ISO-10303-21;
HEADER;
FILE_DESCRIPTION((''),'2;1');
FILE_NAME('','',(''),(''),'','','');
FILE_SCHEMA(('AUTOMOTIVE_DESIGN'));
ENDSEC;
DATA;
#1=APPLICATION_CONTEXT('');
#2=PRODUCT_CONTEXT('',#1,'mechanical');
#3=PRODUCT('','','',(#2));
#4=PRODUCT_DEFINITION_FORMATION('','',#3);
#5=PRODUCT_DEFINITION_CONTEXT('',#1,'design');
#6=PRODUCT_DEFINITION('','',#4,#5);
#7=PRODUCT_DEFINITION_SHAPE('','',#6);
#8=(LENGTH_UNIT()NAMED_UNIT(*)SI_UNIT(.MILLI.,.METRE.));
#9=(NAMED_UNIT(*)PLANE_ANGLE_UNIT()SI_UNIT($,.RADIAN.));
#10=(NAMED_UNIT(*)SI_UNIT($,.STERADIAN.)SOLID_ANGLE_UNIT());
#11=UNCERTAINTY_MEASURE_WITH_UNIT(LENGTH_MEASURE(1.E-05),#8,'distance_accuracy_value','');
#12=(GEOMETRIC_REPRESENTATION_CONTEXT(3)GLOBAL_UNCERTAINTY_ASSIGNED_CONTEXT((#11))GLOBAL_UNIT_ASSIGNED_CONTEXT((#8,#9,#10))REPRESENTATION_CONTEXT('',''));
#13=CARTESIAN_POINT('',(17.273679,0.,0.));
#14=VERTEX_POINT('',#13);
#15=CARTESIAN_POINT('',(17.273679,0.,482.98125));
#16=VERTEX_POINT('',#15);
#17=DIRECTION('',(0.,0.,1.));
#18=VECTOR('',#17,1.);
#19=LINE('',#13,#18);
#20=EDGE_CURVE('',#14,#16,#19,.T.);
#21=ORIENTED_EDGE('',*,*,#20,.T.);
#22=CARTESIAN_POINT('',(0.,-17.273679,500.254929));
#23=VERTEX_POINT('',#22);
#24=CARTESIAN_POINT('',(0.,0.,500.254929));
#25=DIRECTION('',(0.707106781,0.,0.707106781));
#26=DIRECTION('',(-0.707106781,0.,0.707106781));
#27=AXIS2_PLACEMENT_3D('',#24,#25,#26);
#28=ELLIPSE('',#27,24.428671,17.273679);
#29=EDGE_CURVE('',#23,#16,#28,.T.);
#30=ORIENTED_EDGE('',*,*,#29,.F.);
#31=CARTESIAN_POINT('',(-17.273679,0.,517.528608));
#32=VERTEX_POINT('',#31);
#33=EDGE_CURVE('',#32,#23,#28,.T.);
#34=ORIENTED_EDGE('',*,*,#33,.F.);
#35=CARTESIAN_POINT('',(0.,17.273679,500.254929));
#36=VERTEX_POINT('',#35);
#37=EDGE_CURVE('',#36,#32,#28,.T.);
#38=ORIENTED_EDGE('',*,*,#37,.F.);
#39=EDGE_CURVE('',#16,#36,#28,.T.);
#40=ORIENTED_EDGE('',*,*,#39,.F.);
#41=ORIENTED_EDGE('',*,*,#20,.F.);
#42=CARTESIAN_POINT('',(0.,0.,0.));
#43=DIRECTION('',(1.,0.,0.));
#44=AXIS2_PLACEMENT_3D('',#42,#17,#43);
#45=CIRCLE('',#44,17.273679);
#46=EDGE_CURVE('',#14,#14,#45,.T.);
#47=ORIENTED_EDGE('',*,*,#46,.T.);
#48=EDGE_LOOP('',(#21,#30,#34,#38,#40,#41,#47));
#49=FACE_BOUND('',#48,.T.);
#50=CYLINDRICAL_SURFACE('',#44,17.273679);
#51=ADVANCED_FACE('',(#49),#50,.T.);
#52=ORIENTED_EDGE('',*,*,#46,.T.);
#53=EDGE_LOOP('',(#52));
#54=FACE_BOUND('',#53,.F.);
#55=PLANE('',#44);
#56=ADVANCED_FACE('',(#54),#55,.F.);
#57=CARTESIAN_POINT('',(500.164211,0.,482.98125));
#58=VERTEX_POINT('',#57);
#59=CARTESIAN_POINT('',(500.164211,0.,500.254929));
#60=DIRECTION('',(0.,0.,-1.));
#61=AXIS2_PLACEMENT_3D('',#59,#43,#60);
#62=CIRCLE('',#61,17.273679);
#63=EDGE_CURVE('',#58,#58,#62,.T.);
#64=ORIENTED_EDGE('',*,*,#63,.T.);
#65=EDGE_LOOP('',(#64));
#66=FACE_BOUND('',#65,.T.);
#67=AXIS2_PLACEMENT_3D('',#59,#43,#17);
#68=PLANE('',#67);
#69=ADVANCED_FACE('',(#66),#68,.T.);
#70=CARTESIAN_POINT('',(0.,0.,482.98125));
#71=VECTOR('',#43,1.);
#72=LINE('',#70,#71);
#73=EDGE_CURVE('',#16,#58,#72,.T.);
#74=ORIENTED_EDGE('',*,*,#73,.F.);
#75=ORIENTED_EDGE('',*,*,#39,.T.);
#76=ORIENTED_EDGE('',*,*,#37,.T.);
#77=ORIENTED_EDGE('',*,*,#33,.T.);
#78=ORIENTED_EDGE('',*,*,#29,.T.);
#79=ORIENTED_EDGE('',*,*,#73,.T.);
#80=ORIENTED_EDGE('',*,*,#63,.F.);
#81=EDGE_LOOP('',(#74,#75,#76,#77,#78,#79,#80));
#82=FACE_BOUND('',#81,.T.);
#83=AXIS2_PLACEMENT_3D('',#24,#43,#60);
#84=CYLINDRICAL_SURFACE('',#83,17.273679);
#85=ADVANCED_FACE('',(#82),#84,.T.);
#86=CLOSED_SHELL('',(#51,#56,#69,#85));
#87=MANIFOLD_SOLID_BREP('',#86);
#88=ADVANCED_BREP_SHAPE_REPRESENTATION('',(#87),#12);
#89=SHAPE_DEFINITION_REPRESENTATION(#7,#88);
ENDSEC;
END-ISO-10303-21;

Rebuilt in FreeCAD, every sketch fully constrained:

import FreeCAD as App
import Part
import Sketcher

doc = App.newDocument("Part")
body = doc.addObject("PartDesign::Body", "Body")

# Sketch on XY plane
sketch1 = body.newObject("Sketcher::SketchObject", "Sketch")
sketch1.AttachmentSupport = (doc.getObject("XY_Plane"), [""])
sketch1.MapMode = "FlatFace"
sketch1.addGeometry(Part.Circle(App.Vector(0, 0, 0), App.Vector(0, 0, 1), 17), False)
sketch1.addConstraint([
    Sketcher.Constraint("Coincident", 0, 3, -1, 1),
    Sketcher.Constraint("Diameter", 0, 34.547358),
])

# Sketch on XZ plane
sketch2 = body.newObject("Sketcher::SketchObject", "Sketch001")
sketch2.AttachmentSupport = (doc.getObject("XZ_Plane"), [""])
sketch2.MapMode = "FlatFace"
sketch2.addGeometry([
    Part.LineSegment(App.Vector(0, 0, 0), App.Vector(0, 500, 0)),
    Part.LineSegment(App.Vector(0, 500, 0), App.Vector(500, 500, 0)),
], False)
sketch2.addConstraint([
    Sketcher.Constraint("Coincident", 0, 2, 1, 1),
    Sketcher.Constraint("Vertical", 0),
    Sketcher.Constraint("Horizontal", 1),
    Sketcher.Constraint("Coincident", 0, 1, -1, 1),
    Sketcher.Constraint("DistanceX", 1, 1, 1, 2, 500.164211),
    Sketcher.Constraint("DistanceY", 0, 1, 0, 2, 500.254929),
])
doc.recompute()

additivepipe = body.newObject("PartDesign::AdditivePipe", "AdditivePipe")
additivepipe.Profile = sketch1
additivepipe.Spine = (sketch2, ["Edge1", "Edge2"])
additivepipe.Transition = "Right corner"

doc.recompute()
